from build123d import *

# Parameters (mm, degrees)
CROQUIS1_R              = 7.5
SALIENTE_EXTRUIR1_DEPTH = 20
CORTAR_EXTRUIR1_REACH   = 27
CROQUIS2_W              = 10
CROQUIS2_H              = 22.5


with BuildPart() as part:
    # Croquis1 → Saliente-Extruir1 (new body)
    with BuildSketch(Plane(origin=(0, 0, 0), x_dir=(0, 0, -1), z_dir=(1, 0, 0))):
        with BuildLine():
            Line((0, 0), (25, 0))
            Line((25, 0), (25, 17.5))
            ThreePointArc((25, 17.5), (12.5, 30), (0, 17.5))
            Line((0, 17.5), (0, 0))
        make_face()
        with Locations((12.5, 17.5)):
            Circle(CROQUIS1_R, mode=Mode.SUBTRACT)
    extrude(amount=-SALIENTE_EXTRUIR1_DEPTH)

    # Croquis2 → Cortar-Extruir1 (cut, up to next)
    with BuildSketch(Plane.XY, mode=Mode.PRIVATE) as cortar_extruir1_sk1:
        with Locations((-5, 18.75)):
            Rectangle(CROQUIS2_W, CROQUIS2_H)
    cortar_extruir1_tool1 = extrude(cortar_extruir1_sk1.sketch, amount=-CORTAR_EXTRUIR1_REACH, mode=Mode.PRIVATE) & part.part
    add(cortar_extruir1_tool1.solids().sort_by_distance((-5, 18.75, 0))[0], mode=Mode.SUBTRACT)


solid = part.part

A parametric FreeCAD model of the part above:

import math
import FreeCAD as App
import Part
import Sketcher

doc = App.newDocument("Part")
body = doc.addObject("PartDesign::Body", "Body")

sketch1 = body.newObject("Sketcher::SketchObject", "Sketch")
sketch1.AttachmentSupport = (doc.getObject("YZ_Plane"), [""])
sketch1.MapMode = "FlatFace"
sketch1.addGeometry([
    Part.LineSegment(App.Vector(0, 0, 0), App.Vector(0, -25, 0)),
    Part.LineSegment(App.Vector(0, -25, 0), App.Vector(18, -25, 0)),
    Part.ArcOfCircle(Part.Circle(App.Vector(18, -12, 0), App.Vector(0, 0, 1), 12), math.radians(-90), math.radians(90)),
    Part.LineSegment(App.Vector(18, 0, 0), App.Vector(0, 0, 0)),
    Part.Circle(App.Vector(18, -12, 0), App.Vector(0, 0, 1), 8),
], False)
sketch1.addConstraint([
    Sketcher.Constraint("Coincident", 0, 2, 1, 1),
    Sketcher.Constraint("Tangent", 1, 2, 2, 1),
    Sketcher.Constraint("Tangent", 2, 2, 3, 1),
    Sketcher.Constraint("Coincident", 3, 2, 0, 1),
    Sketcher.Constraint("Vertical", 0),
    Sketcher.Constraint("Horizontal", 1),
    Sketcher.Constraint("Horizontal", 3),
    Sketcher.Constraint("Coincident", 3, 2, -1, 1),
    Sketcher.Constraint("Coincident", 4, 3, 2, 3),
    Sketcher.Constraint("Diameter", 4, 15.0),
    Sketcher.Constraint("Radius", 2, 12.5),
    Sketcher.Constraint("DistanceX", 1, 1, 1, 2, 17.5),
])
pad1 = body.newObject("PartDesign::Pad", "Pad")
pad1.Profile = sketch1
pad1.Length = 20
pad1.Reversed = True

sketch2 = body.newObject("Sketcher::SketchObject", "Sketch001")
sketch2.AttachmentSupport = (doc.getObject("XY_Plane"), [""])
sketch2.MapMode = "FlatFace"
sketch2.addGeometry([
    Part.LineSegment(App.Vector(-10, 30, 0), App.Vector(-10, 8, 0)),
    Part.LineSegment(App.Vector(-10, 8, 0), App.Vector(0, 8, 0)),
    Part.LineSegment(App.Vector(0, 8, 0), App.Vector(0, 30, 0)),
    Part.LineSegment(App.Vector(0, 30, 0), App.Vector(-10, 30, 0)),
], False)
sketch2.addConstraint([
    Sketcher.Constraint("Coincident", 0, 2, 1, 1),
    Sketcher.Constraint("Coincident", 1, 2, 2, 1),
    Sketcher.Constraint("Coincident", 2, 2, 3, 1),
    Sketcher.Constraint("Coincident", 3, 2, 0, 1),
    Sketcher.Constraint("Vertical", 0),
    Sketcher.Constraint("Horizontal", 1),
    Sketcher.Constraint("Vertical", 2),
    Sketcher.Constraint("Horizontal", 3),
    Sketcher.Constraint("PointOnObject", 1, 2, -2),
    Sketcher.Constraint("DistanceX", 1, 1, 1, 2, 10.0),
    Sketcher.Constraint("DistanceY", 0, 2, 0, 1, 22.5),
    Sketcher.Constraint("DistanceY", -1, 1, 2, 2, 30.0),
])
pocket1 = body.newObject("PartDesign::Pocket", "Pocket")
pocket1.Profile = sketch2
pocket1.Length = 25

doc.recompute()
